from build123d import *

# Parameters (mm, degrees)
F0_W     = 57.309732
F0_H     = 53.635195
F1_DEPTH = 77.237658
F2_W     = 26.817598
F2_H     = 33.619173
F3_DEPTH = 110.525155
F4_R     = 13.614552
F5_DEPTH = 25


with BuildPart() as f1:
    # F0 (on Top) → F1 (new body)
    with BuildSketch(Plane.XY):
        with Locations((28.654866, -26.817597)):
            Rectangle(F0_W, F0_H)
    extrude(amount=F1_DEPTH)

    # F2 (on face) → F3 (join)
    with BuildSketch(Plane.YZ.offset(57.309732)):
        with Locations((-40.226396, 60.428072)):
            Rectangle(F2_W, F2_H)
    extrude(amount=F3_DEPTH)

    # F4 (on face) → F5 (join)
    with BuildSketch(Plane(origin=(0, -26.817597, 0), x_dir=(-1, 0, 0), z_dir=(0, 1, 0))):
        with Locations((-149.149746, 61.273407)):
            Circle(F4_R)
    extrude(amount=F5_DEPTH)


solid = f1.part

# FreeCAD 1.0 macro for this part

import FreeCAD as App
import Part
import Sketcher
from FreeCAD import Vector


def add_polygon(sketch, points):
    """Adds a closed chain of lines whose ends are joined by coincident constraints."""
    first, n = sketch.GeometryCount, len(points)
    for a, b in zip(points, points[1:] + points[:1]):
        sketch.addGeometry(Part.LineSegment(App.Vector(*a, 0), App.Vector(*b, 0)), False)
    for i in range(n):
        sketch.addConstraint(Sketcher.Constraint("Coincident", first + i, 2, first + (i + 1) % n, 1))

doc = App.newDocument("Part")
body = doc.addObject("PartDesign::Body", "Body")

# Sketch on XY plane
sketch1 = body.newObject("Sketcher::SketchObject", "Sketch")
sketch1.AttachmentSupport = (doc.getObject("XY_Plane"), [""])
sketch1.MapMode = "FlatFace"
add_polygon(sketch1, [(0, 0), (0, -53.635194), (57.309732, -53.635194), (57.309732, 0)])  # lines 0-3
sketch1.addConstraint(Sketcher.Constraint("Vertical", 0))
sketch1.addConstraint(Sketcher.Constraint("Horizontal", 1))
sketch1.addConstraint(Sketcher.Constraint("Vertical", 2))
sketch1.addConstraint(Sketcher.Constraint("Horizontal", 3))
sketch1.addConstraint(Sketcher.Constraint("Coincident", 3, 2, -1, 1))
sketch1.addConstraint(Sketcher.Constraint("DistanceX", 1, 1, 1, 2, 57.309732))
sketch1.addConstraint(Sketcher.Constraint("DistanceY", 0, 2, 0, 1, 53.635195))
pad1 = body.newObject("PartDesign::Pad", "Pad")
pad1.Profile = sketch1
pad1.Length = 77.237658

# Sketch on YZ plane
sketch2 = body.newObject("Sketcher::SketchObject", "Sketch001")
sketch2.AttachmentSupport = (doc.getObject("YZ_Plane"), [""])
sketch2.MapMode = "FlatFace"
sketch2.AttachmentOffset = App.Placement(Vector(0, 0, 57.309732), App.Rotation())
add_polygon(sketch2, [(-53.635195, 77.237658), (-53.635195, 43.618485), (-26.817597, 43.618485), (-26.817597, 77.237658)])  # lines 0-3
sketch2.addConstraint(Sketcher.Constraint("Vertical", 0))
sketch2.addConstraint(Sketcher.Constraint("Horizontal", 1))
sketch2.addConstraint(Sketcher.Constraint("Vertical", 2))
sketch2.addConstraint(Sketcher.Constraint("Horizontal", 3))
sketch2.addConstraint(Sketcher.Constraint("DistanceX", 1, 1, 1, 2, 26.817598))
sketch2.addConstraint(Sketcher.Constraint("DistanceY", 0, 2, 0, 1, 33.619173))
sketch2.addConstraint(Sketcher.Constraint("DistanceY", -1, 1, 2, 2, 77.237658))
sketch2.addConstraint(Sketcher.Constraint("DistanceX", 0, 2, -1, 1, 53.635195))
pad2 = body.newObject("PartDesign::Pad", "Pad001")
pad2.Profile = sketch2
pad2.Length = 110.525155

# Sketch on XZ plane
sketch3 = body.newObject("Sketcher::SketchObject", "Sketch002")
sketch3.AttachmentSupport = (doc.getObject("XZ_Plane"), [""])
sketch3.MapMode = "FlatFace"
sketch3.AttachmentOffset = App.Placement(Vector(0, 0, 26.817597), App.Rotation())
sketch3.addGeometry(Part.Circle(Vector(149.149746, 61.273407, 0), Vector(0, 0, 1), 13.614552), False)
sketch3.addConstraint(Sketcher.Constraint("Diameter", 0, 27.229104))
sketch3.addConstraint(Sketcher.Constraint("DistanceX", -1, 1, 0, 3, 149.149746))
sketch3.addConstraint(Sketcher.Constraint("DistanceY", -1, 1, 0, 3, 61.273407))
pad3 = body.newObject("PartDesign::Pad", "Pad002")
pad3.Profile = sketch3
pad3.Length = 25
pad3.Reversed = True

doc.recompute()
